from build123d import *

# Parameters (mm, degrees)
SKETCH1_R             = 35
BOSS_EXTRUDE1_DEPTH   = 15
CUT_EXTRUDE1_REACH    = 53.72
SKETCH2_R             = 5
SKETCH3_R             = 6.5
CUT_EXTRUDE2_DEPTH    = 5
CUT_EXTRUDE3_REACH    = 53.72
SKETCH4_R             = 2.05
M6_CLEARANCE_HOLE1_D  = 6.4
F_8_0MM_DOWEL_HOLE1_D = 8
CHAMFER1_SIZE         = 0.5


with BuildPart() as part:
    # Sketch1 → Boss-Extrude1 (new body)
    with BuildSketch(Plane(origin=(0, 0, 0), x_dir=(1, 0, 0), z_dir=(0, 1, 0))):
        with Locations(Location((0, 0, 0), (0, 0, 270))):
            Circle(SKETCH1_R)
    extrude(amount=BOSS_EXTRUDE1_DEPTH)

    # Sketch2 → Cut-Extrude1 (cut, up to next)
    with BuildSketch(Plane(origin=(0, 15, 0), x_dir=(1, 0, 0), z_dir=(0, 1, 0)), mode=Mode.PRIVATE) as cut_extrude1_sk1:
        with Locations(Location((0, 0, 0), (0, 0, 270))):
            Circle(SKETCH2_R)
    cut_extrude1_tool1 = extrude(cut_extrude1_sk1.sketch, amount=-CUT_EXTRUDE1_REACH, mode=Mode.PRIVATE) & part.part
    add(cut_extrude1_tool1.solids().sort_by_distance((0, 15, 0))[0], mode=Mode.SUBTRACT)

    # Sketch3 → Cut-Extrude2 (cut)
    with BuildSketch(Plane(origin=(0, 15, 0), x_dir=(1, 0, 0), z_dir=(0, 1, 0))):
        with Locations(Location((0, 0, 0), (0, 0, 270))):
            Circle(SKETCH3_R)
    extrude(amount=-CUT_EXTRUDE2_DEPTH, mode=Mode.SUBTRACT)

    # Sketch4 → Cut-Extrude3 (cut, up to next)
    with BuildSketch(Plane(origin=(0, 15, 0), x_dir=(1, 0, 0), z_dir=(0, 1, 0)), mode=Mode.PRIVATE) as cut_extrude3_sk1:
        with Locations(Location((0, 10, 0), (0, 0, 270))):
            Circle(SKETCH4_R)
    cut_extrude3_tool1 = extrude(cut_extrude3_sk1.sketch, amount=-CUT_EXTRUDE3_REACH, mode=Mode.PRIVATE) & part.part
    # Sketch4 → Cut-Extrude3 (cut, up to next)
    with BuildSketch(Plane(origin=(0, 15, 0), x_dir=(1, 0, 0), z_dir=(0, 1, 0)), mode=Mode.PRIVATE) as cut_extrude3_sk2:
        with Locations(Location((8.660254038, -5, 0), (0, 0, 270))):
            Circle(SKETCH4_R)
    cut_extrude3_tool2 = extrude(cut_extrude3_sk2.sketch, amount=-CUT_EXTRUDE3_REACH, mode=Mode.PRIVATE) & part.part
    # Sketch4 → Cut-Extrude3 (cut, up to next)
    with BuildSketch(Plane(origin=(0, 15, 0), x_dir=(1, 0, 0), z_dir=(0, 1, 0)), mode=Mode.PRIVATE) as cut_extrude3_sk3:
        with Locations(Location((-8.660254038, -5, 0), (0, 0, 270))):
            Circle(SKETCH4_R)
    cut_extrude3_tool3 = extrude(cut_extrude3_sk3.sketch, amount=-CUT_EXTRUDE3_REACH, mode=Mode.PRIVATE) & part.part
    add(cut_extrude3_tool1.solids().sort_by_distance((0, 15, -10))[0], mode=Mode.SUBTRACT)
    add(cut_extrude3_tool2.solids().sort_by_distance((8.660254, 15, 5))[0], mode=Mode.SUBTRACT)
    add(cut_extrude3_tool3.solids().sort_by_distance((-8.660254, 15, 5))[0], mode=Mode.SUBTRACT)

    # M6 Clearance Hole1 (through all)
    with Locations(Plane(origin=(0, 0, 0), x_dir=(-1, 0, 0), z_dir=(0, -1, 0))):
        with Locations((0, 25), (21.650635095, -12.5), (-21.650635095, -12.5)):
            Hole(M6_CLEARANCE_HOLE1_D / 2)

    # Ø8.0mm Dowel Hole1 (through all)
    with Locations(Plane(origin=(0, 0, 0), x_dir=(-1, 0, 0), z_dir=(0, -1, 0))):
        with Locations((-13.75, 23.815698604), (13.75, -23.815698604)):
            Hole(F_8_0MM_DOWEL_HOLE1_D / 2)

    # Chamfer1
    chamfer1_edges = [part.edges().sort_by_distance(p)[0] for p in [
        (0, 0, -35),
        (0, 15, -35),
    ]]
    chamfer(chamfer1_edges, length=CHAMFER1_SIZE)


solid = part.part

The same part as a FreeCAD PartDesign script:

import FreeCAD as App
import Part
import Sketcher
from FreeCAD import Vector
Q = App.Units.Quantity


def edges_at(feature, points):
    """Names of the edges that pass closest to the given points."""
    edges = feature.Shape.Edges
    near = lambda p: min(range(len(edges)), key=lambda i: edges[i].distToShape(Part.Vertex(*p))[0])
    return sorted({f"Edge{near(p) + 1}" for p in points})

doc = App.newDocument("Part")
body = doc.addObject("PartDesign::Body", "Body")

# Sketch on XZ plane
sketch1 = body.newObject("Sketcher::SketchObject", "Sketch")
sketch1.AttachmentSupport = (doc.getObject("XZ_Plane"), [""])
sketch1.MapMode = "FlatFace"
sketch1.addGeometry(Part.Circle(Vector(0, 0, 0), Vector(0, 0, 1), 35), False)
sketch1.addConstraint([
    Sketcher.Constraint("Coincident", 0, 3, -1, 1),
    Sketcher.Constraint("Diameter", 0, Q("70 mm")),
])
pad1 = body.newObject("PartDesign::Pad", "Pad")
pad1.Profile = sketch1
pad1.Length = 15
pad1.Reversed = True

# Sketch on XZ plane
sketch2 = body.newObject("Sketcher::SketchObject", "Sketch001")
sketch2.AttachmentSupport = (doc.getObject("XZ_Plane"), [""])
sketch2.MapMode = "FlatFace"
sketch2.AttachmentOffset = App.Placement(Vector(0, 0, -15), App.Rotation())
sketch2.addGeometry(Part.Circle(Vector(0, 0, 0), Vector(0, 0, 1), 5), False)
sketch2.addConstraint([
    Sketcher.Constraint("Coincident", 0, 3, -1, 1),
    Sketcher.Constraint("Diameter", 0, Q("10 mm")),
])
pocket1 = body.newObject("PartDesign::Pocket", "Pocket")
pocket1.Profile = sketch2
pocket1.Type = "UpToFirst"
pocket1.Reversed = True

# Sketch on XZ plane
sketch3 = body.newObject("Sketcher::SketchObject", "Sketch002")
sketch3.AttachmentSupport = (doc.getObject("XZ_Plane"), [""])
sketch3.MapMode = "FlatFace"
sketch3.AttachmentOffset = App.Placement(Vector(0, 0, -15), App.Rotation())
sketch3.addGeometry(Part.Circle(Vector(0, 0, 0), Vector(0, 0, 1), 6), False)
sketch3.addConstraint([
    Sketcher.Constraint("Coincident", 0, 3, -1, 1),
    Sketcher.Constraint("Diameter", 0, Q("13 mm")),
])
pocket2 = body.newObject("PartDesign::Pocket", "Pocket001")
pocket2.Profile = sketch3
pocket2.Length = 5
pocket2.Reversed = True

# Sketch on XZ plane
sketch4 = body.newObject("Sketcher::SketchObject", "Sketch003")
sketch4.AttachmentSupport = (doc.getObject("XZ_Plane"), [""])
sketch4.MapMode = "FlatFace"
sketch4.AttachmentOffset = App.Placement(Vector(0, 0, -15), App.Rotation())
sketch4.addGeometry(Part.Circle(Vector(0, -10, 0), Vector(0, 0, 1), 2), False)
sketch4.addConstraint([
    Sketcher.Constraint("PointOnObject", 0, 3, -2),
    Sketcher.Constraint("Diameter", 0, Q("4.1 mm")),
    Sketcher.Constraint("DistanceY", 0, 3, -1, 1, Q("10 mm")),
])
pocket3 = body.newObject("PartDesign::Pocket", "Pocket002")
pocket3.Profile = sketch4
pocket3.Type = "UpToFirst"
pocket3.Reversed = True

# Sketch on XZ plane
sketch5 = body.newObject("Sketcher::SketchObject", "Sketch004")
sketch5.AttachmentSupport = (doc.getObject("XZ_Plane"), [""])
sketch5.MapMode = "FlatFace"
sketch5.AttachmentOffset = App.Placement(Vector(0, 0, -15), App.Rotation())
sketch5.addGeometry(Part.Circle(Vector(8.7, 5, 0), Vector(0, 0, 1), 2), False)
sketch5.addConstraint([
    Sketcher.Constraint("Diameter", 0, Q("4.1 mm")),
    Sketcher.Constraint("DistanceY", -1, 1, 0, 3, Q("5 mm")),
    Sketcher.Constraint("DistanceX", -1, 1, 0, 3, Q("8.660254 mm")),
])
pocket4 = body.newObject("PartDesign::Pocket", "Pocket003")
pocket4.Profile = sketch5
pocket4.Type = "UpToFirst"
pocket4.Reversed = True

# Sketch on XZ plane
sketch6 = body.newObject("Sketcher::SketchObject", "Sketch005")
sketch6.AttachmentSupport = (doc.getObject("XZ_Plane"), [""])
sketch6.MapMode = "FlatFace"
sketch6.AttachmentOffset = App.Placement(Vector(0, 0, -15), App.Rotation())
sketch6.addGeometry(Part.Circle(Vector(-8.7, 5, 0), Vector(0, 0, 1), 2), False)
sketch6.addConstraint([
    Sketcher.Constraint("Diameter", 0, Q("4.1 mm")),
    Sketcher.Constraint("DistanceY", -1, 1, 0, 3, Q("5 mm")),
    Sketcher.Constraint("DistanceX", 0, 3, -1, 1, Q("8.660254 mm")),
])
pocket5 = body.newObject("PartDesign::Pocket", "Pocket004")
pocket5.Profile = sketch6
pocket5.Type = "UpToFirst"
pocket5.Reversed = True

# Sketch on XZ plane
sketch7 = body.newObject("Sketcher::SketchObject", "Sketch006")
sketch7.AttachmentSupport = (doc.getObject("XZ_Plane"), [""])
sketch7.MapMode = "FlatFace"
sketch7.addGeometry([
    Part.Circle(Vector(0, -25, 0), Vector(0, 0, 1), 3.2),
    Part.Circle(Vector(-21.7, 12.5, 0), Vector(0, 0, 1), 3.2),
    Part.Circle(Vector(21.7, 12.5, 0), Vector(0, 0, 1), 3.2),
], False)
sketch7.addConstraint([
    Sketcher.Constraint("Equal", 0, 1),
    Sketcher.Constraint("Equal", 1, 2),
    Sketcher.Constraint("Symmetric", 1, 3, 2, 3, -2),
    Sketcher.Constraint("PointOnObject", 0, 3, -2),
    Sketcher.Constraint("Diameter", 0, Q("6.4 mm")),
    Sketcher.Constraint("DistanceY", 0, 3, -1, 1, Q("25 mm")),
    Sketcher.Constraint("DistanceY", -1, 1, 1, 3, Q("12.5 mm")),
    Sketcher.Constraint("DistanceX", 1, 3, 2, 3, Q("43.30127 mm")),
])
doc.recompute()
hole = body.newObject("PartDesign::Hole", "Hole")
hole.Profile = sketch7
hole.ThreadType = "None"
hole.Diameter = 6.4
hole.DepthType = "ThroughAll"

# Sketch on XZ plane
sketch8 = body.newObject("Sketcher::SketchObject", "Sketch007")
sketch8.AttachmentSupport = (doc.getObject("XZ_Plane"), [""])
sketch8.MapMode = "FlatFace"
sketch8.addGeometry([
    Part.Circle(Vector(13.8, -23.8, 0), Vector(0, 0, 1), 4),
    Part.Circle(Vector(-13.8, 23.8, 0), Vector(0, 0, 1), 4),
], False)
sketch8.addConstraint([
    Sketcher.Constraint("Equal", 0, 1),
    Sketcher.Constraint("Symmetric", 0, 3, 1, 3, -1, 1),
    Sketcher.Constraint("Diameter", 0, Q("8 mm")),
    Sketcher.Constraint("DistanceX", 1, 3, 0, 3, Q("27.5 mm")),
    Sketcher.Constraint("DistanceY", 0, 3, -1, 1, Q("23.815699 mm")),
])
doc.recompute()
hole2 = body.newObject("PartDesign::Hole", "Hole001")
hole2.Profile = sketch8
hole2.ThreadType = "None"
hole2.Diameter = 8
hole2.DepthType = "ThroughAll"
doc.recompute()

chamfer = body.newObject("PartDesign::Chamfer", "Chamfer")
chamfer.Base = (hole2, edges_at(hole2, [(0, 0, -35), (0, 15, -35)]))
chamfer.Size = 0.5

doc.recompute()
